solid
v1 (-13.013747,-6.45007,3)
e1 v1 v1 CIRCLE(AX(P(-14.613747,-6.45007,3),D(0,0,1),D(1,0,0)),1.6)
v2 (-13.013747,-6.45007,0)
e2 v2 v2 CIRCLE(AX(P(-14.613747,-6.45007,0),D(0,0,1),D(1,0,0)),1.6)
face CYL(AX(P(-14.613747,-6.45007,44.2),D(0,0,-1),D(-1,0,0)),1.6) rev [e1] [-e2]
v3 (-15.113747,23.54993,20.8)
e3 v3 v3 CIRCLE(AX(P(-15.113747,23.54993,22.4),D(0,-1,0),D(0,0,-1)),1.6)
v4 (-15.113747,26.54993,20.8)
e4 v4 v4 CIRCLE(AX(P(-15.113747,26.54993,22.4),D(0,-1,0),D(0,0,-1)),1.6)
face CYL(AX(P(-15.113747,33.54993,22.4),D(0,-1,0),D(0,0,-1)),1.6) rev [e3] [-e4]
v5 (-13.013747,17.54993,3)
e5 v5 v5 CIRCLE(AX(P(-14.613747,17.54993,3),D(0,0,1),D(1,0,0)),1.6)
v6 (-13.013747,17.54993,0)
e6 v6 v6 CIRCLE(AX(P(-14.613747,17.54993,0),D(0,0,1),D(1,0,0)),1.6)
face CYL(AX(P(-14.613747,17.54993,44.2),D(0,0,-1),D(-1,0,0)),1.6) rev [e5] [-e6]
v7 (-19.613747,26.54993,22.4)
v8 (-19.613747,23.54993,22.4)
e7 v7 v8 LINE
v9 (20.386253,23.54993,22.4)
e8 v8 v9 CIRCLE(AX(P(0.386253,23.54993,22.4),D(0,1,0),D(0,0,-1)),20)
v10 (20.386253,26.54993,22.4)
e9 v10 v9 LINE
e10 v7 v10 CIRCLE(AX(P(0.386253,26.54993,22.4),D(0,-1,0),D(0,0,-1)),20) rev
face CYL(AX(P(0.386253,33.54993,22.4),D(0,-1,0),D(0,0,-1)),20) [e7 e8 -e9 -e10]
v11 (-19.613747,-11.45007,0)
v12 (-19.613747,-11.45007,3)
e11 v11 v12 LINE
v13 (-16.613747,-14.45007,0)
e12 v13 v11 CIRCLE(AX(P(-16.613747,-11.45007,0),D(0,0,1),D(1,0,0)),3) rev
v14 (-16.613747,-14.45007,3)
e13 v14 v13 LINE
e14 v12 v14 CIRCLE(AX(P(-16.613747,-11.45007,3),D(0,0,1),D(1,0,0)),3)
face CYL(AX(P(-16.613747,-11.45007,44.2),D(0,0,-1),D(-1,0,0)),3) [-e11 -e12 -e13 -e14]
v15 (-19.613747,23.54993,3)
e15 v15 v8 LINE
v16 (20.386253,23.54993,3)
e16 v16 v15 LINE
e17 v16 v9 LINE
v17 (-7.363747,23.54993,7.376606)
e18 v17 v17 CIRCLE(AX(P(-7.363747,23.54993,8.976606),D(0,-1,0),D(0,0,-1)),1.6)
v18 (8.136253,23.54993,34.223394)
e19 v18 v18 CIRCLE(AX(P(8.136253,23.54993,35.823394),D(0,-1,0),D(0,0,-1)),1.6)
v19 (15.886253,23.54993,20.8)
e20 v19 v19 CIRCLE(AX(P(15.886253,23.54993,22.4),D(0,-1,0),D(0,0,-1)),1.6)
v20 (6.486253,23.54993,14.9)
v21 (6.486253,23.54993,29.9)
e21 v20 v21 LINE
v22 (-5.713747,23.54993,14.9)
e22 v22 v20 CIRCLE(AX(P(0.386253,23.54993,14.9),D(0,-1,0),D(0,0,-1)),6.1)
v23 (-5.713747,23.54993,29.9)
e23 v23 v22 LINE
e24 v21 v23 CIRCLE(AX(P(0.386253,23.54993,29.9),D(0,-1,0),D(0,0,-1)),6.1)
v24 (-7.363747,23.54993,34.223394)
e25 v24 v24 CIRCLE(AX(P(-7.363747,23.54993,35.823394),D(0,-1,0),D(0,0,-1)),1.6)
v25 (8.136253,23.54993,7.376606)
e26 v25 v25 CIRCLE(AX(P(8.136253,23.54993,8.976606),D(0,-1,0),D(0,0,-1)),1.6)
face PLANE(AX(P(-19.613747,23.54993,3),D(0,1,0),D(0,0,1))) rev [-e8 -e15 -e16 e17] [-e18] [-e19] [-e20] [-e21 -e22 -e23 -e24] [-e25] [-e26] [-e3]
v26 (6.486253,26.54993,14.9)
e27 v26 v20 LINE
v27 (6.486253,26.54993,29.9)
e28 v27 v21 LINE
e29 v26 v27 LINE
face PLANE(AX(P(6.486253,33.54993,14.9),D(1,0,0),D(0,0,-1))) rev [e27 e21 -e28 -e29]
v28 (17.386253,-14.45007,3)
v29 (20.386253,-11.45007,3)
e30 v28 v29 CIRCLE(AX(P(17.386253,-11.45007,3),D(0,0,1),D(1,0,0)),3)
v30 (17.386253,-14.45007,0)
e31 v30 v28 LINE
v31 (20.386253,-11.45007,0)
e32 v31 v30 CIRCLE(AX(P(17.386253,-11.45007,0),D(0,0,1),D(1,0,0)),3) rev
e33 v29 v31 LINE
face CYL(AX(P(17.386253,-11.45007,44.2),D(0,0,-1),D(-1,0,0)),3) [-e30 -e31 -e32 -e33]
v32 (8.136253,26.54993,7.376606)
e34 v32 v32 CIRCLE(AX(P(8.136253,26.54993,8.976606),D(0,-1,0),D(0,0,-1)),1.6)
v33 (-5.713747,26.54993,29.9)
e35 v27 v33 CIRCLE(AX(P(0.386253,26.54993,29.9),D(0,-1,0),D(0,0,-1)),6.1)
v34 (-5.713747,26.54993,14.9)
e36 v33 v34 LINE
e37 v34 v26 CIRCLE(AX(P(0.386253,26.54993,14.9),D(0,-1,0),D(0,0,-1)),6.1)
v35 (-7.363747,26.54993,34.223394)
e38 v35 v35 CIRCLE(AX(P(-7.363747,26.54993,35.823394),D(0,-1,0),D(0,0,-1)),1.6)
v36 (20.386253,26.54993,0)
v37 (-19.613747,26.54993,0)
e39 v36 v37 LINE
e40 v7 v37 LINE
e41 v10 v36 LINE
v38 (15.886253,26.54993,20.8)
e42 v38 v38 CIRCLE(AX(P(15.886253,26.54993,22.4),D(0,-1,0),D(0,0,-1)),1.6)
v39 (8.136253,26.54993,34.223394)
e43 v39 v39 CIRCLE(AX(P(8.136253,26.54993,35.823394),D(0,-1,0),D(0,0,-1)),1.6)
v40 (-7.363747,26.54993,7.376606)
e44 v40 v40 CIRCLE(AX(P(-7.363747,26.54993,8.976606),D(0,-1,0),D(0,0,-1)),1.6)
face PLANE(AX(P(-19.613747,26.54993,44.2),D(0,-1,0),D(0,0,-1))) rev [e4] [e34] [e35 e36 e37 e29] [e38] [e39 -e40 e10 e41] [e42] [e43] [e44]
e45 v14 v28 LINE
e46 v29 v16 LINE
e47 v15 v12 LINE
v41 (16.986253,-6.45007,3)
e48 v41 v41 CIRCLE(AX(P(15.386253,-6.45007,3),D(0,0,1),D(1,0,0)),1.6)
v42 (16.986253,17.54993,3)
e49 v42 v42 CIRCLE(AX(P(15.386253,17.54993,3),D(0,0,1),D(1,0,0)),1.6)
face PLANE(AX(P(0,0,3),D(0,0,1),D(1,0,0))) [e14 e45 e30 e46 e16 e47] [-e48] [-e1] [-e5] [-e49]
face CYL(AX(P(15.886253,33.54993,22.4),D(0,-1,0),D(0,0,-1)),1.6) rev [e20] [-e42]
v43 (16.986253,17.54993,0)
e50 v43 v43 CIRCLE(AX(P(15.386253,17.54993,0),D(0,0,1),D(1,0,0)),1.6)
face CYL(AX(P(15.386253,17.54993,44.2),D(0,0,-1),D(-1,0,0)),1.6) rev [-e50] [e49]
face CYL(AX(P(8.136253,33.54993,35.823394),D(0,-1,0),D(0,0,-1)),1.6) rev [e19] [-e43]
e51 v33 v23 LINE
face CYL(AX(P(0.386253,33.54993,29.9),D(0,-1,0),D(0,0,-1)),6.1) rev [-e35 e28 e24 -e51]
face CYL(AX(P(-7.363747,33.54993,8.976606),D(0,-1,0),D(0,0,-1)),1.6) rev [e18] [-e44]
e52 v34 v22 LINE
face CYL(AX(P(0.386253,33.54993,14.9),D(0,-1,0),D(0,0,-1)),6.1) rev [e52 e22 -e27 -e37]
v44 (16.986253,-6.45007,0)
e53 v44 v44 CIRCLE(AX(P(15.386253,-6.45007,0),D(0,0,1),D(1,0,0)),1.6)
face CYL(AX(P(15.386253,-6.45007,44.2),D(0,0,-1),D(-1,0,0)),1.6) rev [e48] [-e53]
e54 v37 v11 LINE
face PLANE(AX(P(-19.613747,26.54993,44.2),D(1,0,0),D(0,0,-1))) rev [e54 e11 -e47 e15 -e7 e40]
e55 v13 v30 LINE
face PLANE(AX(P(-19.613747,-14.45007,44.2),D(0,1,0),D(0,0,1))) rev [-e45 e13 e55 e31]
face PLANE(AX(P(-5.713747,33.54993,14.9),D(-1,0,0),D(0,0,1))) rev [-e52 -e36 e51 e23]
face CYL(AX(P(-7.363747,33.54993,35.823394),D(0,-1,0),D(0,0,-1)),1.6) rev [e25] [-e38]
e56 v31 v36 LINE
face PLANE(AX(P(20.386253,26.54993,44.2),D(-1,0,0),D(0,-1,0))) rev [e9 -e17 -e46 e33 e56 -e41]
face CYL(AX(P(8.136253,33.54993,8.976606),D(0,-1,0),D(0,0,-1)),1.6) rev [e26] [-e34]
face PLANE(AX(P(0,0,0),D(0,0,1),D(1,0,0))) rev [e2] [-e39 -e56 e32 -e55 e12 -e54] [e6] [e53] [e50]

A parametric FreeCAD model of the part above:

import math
import FreeCAD as App
import Part
import Sketcher
Q = App.Units.Quantity


def edges_at(feature, points):
    """Names of the edges that pass closest to the given points."""
    edges = feature.Shape.Edges
    near = lambda p: min(range(len(edges)), key=lambda i: edges[i].distToShape(Part.Vertex(*p))[0])
    return sorted({f"Edge{near(p) + 1}" for p in points})

doc = App.newDocument("Part")
body = doc.addObject("PartDesign::Body", "Body")

sketch1 = body.newObject("Sketcher::SketchObject", "Sketch")
sketch1.AttachmentSupport = (doc.getObject("XY_Plane"), [""])
sketch1.MapMode = "FlatFace"
sketch1.addGeometry([
    Part.LineSegment(App.Vector(-19.613747, 26.54993, 0), App.Vector(-19.613747, -14.45007, 0)),
    Part.LineSegment(App.Vector(-19.613747, -14.45007, 0), App.Vector(20.386253, -14.45007, 0)),
    Part.LineSegment(App.Vector(20.386253, -14.45007, 0), App.Vector(20.386253, 26.54993, 0)),
    Part.LineSegment(App.Vector(20.386253, 26.54993, 0), App.Vector(-19.613747, 26.54993, 0)),
    Part.Circle(App.Vector(-14.613747, -6.45007, 0), App.Vector(0, 0, 1), 1.6),
    Part.Circle(App.Vector(15.386253, -6.45007, 0), App.Vector(0, 0, 1), 1.6),
    Part.Circle(App.Vector(-14.613747, 17.54993, 0), App.Vector(0, 0, 1), 1.6),
    Part.Circle(App.Vector(15.386253, 17.54993, 0), App.Vector(0, 0, 1), 1.6),
], False)
sketch1.addConstraint([
    Sketcher.Constraint("Coincident", 0, 2, 1, 1),
    Sketcher.Constraint("Coincident", 1, 2, 2, 1),
    Sketcher.Constraint("Coincident", 2, 2, 3, 1),
    Sketcher.Constraint("Coincident", 3, 2, 0, 1),
    Sketcher.Constraint("Vertical", 0),
    Sketcher.Constraint("Horizontal", 1),
    Sketcher.Constraint("Vertical", 2),
    Sketcher.Constraint("Horizontal", 3),
    Sketcher.Constraint("Equal", 4, 5),
    Sketcher.Constraint("Equal", 5, 6),
    Sketcher.Constraint("Equal", 6, 7),
    Sketcher.Constraint("Horizontal", 4, 3, 5, 3),
    Sketcher.Constraint("Horizontal", 6, 3, 7, 3),
    Sketcher.Constraint("Vertical", 4, 3, 6, 3),
    Sketcher.Constraint("Vertical", 5, 3, 7, 3),
    Sketcher.Constraint("Diameter", 4, Q("3.2 mm")),
    Sketcher.Constraint("DistanceX", 1, 1, 1, 2, Q("40 mm")),
    Sketcher.Constraint("DistanceY", 0, 2, 0, 1, Q("41 mm")),
    Sketcher.Constraint("DistanceX", 4, 3, 5, 3, Q("30 mm")),
    Sketcher.Constraint("DistanceY", 4, 3, 6, 3, Q("24 mm")),
    Sketcher.Constraint("DistanceX", 0, 2, 4, 3, Q("5 mm")),
    Sketcher.Constraint("DistanceY", 0, 2, 4, 3, Q("8 mm")),
    Sketcher.Constraint("DistanceY", 4, 3, -1, 1, Q("6.45007 mm")),
    Sketcher.Constraint("DistanceX", 4, 3, -1, 1, Q("14.613747 mm")),
])
pad1 = body.newObject("PartDesign::Pad", "Pad")
pad1.Profile = sketch1
pad1.Length = 44.2

sketch2 = body.newObject("Sketcher::SketchObject", "Sketch001")
sketch2.AttachmentSupport = (doc.getObject("XY_Plane"), [""])
sketch2.MapMode = "FlatFace"
sketch2.AttachmentOffset = App.Placement(App.Vector(0, 0, 44.2), App.Rotation())
sketch2.addGeometry([
    Part.LineSegment(App.Vector(-19.613747, 23.54993, 0), App.Vector(-19.613747, -14.45007, 0)),
    Part.LineSegment(App.Vector(-19.613747, -14.45007, 0), App.Vector(20.386253, -14.45007, 0)),
    Part.LineSegment(App.Vector(20.386253, -14.45007, 0), App.Vector(20.386253, 23.54993, 0)),
    Part.LineSegment(App.Vector(20.386253, 23.54993, 0), App.Vector(-19.613747, 23.54993, 0)),
], False)
sketch2.addConstraint([
    Sketcher.Constraint("Coincident", 0, 2, 1, 1),
    Sketcher.Constraint("Coincident", 1, 2, 2, 1),
    Sketcher.Constraint("Coincident", 2, 2, 3, 1),
    Sketcher.Constraint("Coincident", 3, 2, 0, 1),
    Sketcher.Constraint("Vertical", 0),
    Sketcher.Constraint("Horizontal", 1),
    Sketcher.Constraint("Vertical", 2),
    Sketcher.Constraint("Horizontal", 3),
    Sketcher.Constraint("DistanceX", 1, 1, 1, 2, Q("40 mm")),
    Sketcher.Constraint("DistanceY", 0, 2, 0, 1, Q("38 mm")),
    Sketcher.Constraint("DistanceY", 0, 2, -1, 1, Q("14.45007 mm")),
    Sketcher.Constraint("DistanceX", 0, 2, -1, 1, Q("19.613747 mm")),
])
pocket1 = body.newObject("PartDesign::Pocket", "Pocket")
pocket1.Profile = sketch2
pocket1.Length = 41.2
doc.recompute()

fillet = body.newObject("PartDesign::Fillet", "Fillet")
fillet.Base = (pocket1, edges_at(pocket1, [(20.386, -14.45, 1.5), (-19.614, -14.45, 1.5)]))
fillet.Radius = 3

sketch3 = body.newObject("Sketcher::SketchObject", "Sketch002")
sketch3.AttachmentSupport = (doc.getObject("XZ_Plane"), [""])
sketch3.MapMode = "FlatFace"
sketch3.AttachmentOffset = App.Placement(App.Vector(0, 0, -23.54993), App.Rotation())
sketch3.addGeometry([
    Part.Circle(App.Vector(-7.363747, 35.823394, 0), App.Vector(0, 0, 1), 1.6),
    Part.Circle(App.Vector(8.136253, 35.823394, 0), App.Vector(0, 0, 1), 1.6),
    Part.Circle(App.Vector(15.886253, 22.4, 0), App.Vector(0, 0, 1), 1.6),
    Part.Circle(App.Vector(8.136253, 8.976606, 0), App.Vector(0, 0, 1), 1.6),
    Part.Circle(App.Vector(-7.363747, 8.976606, 0), App.Vector(0, 0, 1), 1.6),
    Part.Circle(App.Vector(-15.113747, 22.4, 0), App.Vector(0, 0, 1), 1.6),
    Part.LineSegment(App.Vector(20.386253, 44.2, 0), App.Vector(-19.613747, 44.2, 0)),
    Part.LineSegment(App.Vector(-19.613747, 44.2, 0), App.Vector(-19.613747, 22.4, 0)),
    Part.ArcOfCircle(Part.Circle(App.Vector(0.386253, 22.4, 0), App.Vector(0, 0, 1), 20), math.radians(0), math.radians(180)),
    Part.LineSegment(App.Vector(20.386253, 22.4, 0), App.Vector(20.386253, 44.2, 0)),
    Part.LineSegment(App.Vector(-5.713747, 29.9, 0), App.Vector(-5.713747, 14.9, 0)),
    Part.ArcOfCircle(Part.Circle(App.Vector(0.386253, 14.9, 0), App.Vector(0, 0, 1), 6.1), math.radians(180), math.radians(360)),
    Part.LineSegment(App.Vector(6.486253, 14.9, 0), App.Vector(6.486253, 29.9, 0)),
    Part.ArcOfCircle(Part.Circle(App.Vector(0.386253, 29.9, 0), App.Vector(0, 0, 1), 6.1), math.radians(0), math.radians(180)),
], False)
sketch3.addConstraint([
    Sketcher.Constraint("Coincident", 6, 2, 7, 1),
    Sketcher.Constraint("Tangent", 7, 2, 8, 2),
    Sketcher.Constraint("Tangent", 8, 1, 9, 1),
    Sketcher.Constraint("Coincident", 9, 2, 6, 1),
    Sketcher.Constraint("Tangent", 10, 2, 11, 1),
    Sketcher.Constraint("Tangent", 11, 2, 12, 1),
    Sketcher.Constraint("Tangent", 12, 2, 13, 1),
    Sketcher.Constraint("Tangent", 13, 2, 10, 1),
    Sketcher.Constraint("Horizontal", 6),
    Sketcher.Constraint("Vertical", 7),
    Sketcher.Constraint("Vertical", 9),
    Sketcher.Constraint("Vertical", 10),
    Sketcher.Constraint("Vertical", 12),
    Sketcher.Constraint("Equal", 0, 1),
    Sketcher.Constraint("Equal", 1, 2),
    Sketcher.Constraint("Equal", 2, 3),
    Sketcher.Constraint("Equal", 3, 4),
    Sketcher.Constraint("Equal", 4, 5),
    Sketcher.Constraint("Horizontal", 0, 3, 1, 3),
    Sketcher.Constraint("Horizontal", 3, 3, 4, 3),
    Sketcher.Constraint("Horizontal", 2, 3, 5, 3),
    Sketcher.Constraint("Horizontal", 5, 3, 8, 3),
    Sketcher.Constraint("Vertical", 1, 3, 3, 3),
    Sketcher.Constraint("Vertical", 0, 3, 4, 3),
    Sketcher.Constraint("Vertical", 8, 3, 11, 3),
    Sketcher.Constraint("Radius", 8, Q("20 mm")),
    Sketcher.Constraint("Diameter", 0, Q("3.2 mm")),
    Sketcher.Constraint("Radius", 11, Q("6.1 mm")),
    Sketcher.Constraint("DistanceY", 10, 2, 10, 1, Q("15 mm")),
    Sketcher.Constraint("DistanceY", 7, 2, 7, 1, Q("21.8 mm")),
    Sketcher.Constraint("DistanceX", 5, 3, 2, 3, Q("31 mm")),
    Sketcher.Constraint("DistanceY", -1, 1, 2, 3, Q("22.4 mm")),
    Sketcher.Constraint("DistanceY", -1, 1, 11, 3, Q("14.9 mm")),
    Sketcher.Constraint("DistanceX", 0, 3, 1, 3, Q("15.5 mm")),
    Sketcher.Constraint("DistanceX", 8, 3, 2, 3, Q("15.5 mm")),
    Sketcher.Constraint("DistanceX", 1, 3, 2, 3, Q("7.75 mm")),
    Sketcher.Constraint("DistanceX", 0, 3, -1, 1, Q("7.363747 mm")),
    Sketcher.Constraint("DistanceY", -1, 1, 0, 3, Q("35.823394 mm")),
    Sketcher.Constraint("DistanceY", -1, 1, 3, 3, Q("8.976606 mm")),
])
pocket2 = body.newObject("PartDesign::Pocket", "Pocket001")
pocket2.Profile = sketch3
pocket2.Length = 10

doc.recompute()
